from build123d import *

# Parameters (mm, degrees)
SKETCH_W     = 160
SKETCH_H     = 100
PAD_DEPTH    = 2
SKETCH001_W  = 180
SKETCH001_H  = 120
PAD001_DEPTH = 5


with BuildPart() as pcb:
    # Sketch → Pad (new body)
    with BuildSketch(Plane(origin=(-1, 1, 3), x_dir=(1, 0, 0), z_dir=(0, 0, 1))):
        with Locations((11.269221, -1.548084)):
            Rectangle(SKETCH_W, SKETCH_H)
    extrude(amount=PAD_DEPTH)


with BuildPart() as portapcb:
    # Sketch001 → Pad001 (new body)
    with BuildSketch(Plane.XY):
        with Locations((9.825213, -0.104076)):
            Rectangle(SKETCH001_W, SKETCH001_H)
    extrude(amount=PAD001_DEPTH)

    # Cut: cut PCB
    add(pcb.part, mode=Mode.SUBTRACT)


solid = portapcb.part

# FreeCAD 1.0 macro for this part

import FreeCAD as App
import Part
import Sketcher

doc = App.newDocument("Part")
body = doc.addObject("PartDesign::Body", "Body")

# Sketch on XY plane
sketch1 = body.newObject("Sketcher::SketchObject", "Sketch")
sketch1.AttachmentSupport = (doc.getObject("XY_Plane"), [""])
sketch1.MapMode = "FlatFace"
sketch1.AttachmentOffset = App.Placement(App.Vector(0, 0, 3), App.Rotation())
sketch1.addGeometry([
    Part.LineSegment(App.Vector(-70, 49, 0), App.Vector(-70, -51, 0)),
    Part.LineSegment(App.Vector(-70, -51, 0), App.Vector(90, -51, 0)),
    Part.LineSegment(App.Vector(90, -51, 0), App.Vector(90, 49, 0)),
    Part.LineSegment(App.Vector(90, 49, 0), App.Vector(-70, 49, 0)),
], False)
sketch1.addConstraint([
    Sketcher.Constraint("Coincident", 0, 2, 1, 1),
    Sketcher.Constraint("Coincident", 1, 2, 2, 1),
    Sketcher.Constraint("Coincident", 2, 2, 3, 1),
    Sketcher.Constraint("Coincident", 3, 2, 0, 1),
    Sketcher.Constraint("Vertical", 0),
    Sketcher.Constraint("Horizontal", 1),
    Sketcher.Constraint("Vertical", 2),
    Sketcher.Constraint("Horizontal", 3),
    Sketcher.Constraint("DistanceX", 1, 1, 1, 2, 160.0),
    Sketcher.Constraint("DistanceY", 0, 2, 0, 1, 100.0),
    Sketcher.Constraint("DistanceX", 0, 2, -1, 1, 69.730779),
    Sketcher.Constraint("DistanceY", 0, 2, -1, 1, 50.548084),
])
pad1 = body.newObject("PartDesign::Pad", "Pad")
pad1.Profile = sketch1
pad1.Length = 2
body2 = doc.addObject("PartDesign::Body", "Body001")

# Sketch on XY plane
sketch2 = body2.newObject("Sketcher::SketchObject", "Sketch001")
sketch2.AttachmentSupport = (doc.getObject("XY_Plane001"), [""])
sketch2.MapMode = "FlatFace"
sketch2.addGeometry([
    Part.LineSegment(App.Vector(-80, 60, 0), App.Vector(-80, -60, 0)),
    Part.LineSegment(App.Vector(-80, -60, 0), App.Vector(100, -60, 0)),
    Part.LineSegment(App.Vector(100, -60, 0), App.Vector(100, 60, 0)),
    Part.LineSegment(App.Vector(100, 60, 0), App.Vector(-80, 60, 0)),
], False)
sketch2.addConstraint([
    Sketcher.Constraint("Coincident", 0, 2, 1, 1),
    Sketcher.Constraint("Coincident", 1, 2, 2, 1),
    Sketcher.Constraint("Coincident", 2, 2, 3, 1),
    Sketcher.Constraint("Coincident", 3, 2, 0, 1),
    Sketcher.Constraint("Vertical", 0),
    Sketcher.Constraint("Horizontal", 1),
    Sketcher.Constraint("Vertical", 2),
    Sketcher.Constraint("Horizontal", 3),
    Sketcher.Constraint("DistanceX", 1, 1, 1, 2, 180.0),
    Sketcher.Constraint("DistanceY", 0, 2, 0, 1, 120.0),
    Sketcher.Constraint("DistanceX", 0, 2, -1, 1, 80.174787),
    Sketcher.Constraint("DistanceY", 0, 2, -1, 1, 60.104076),
])
pad2 = body2.newObject("PartDesign::Pad", "Pad001")
pad2.Profile = sketch2
pad2.Length = 5
doc.recompute()

boolean = body2.newObject("PartDesign::Boolean", "Boolean")
boolean.Type = "Cut"
boolean.addObjects([body])

doc.recompute()
